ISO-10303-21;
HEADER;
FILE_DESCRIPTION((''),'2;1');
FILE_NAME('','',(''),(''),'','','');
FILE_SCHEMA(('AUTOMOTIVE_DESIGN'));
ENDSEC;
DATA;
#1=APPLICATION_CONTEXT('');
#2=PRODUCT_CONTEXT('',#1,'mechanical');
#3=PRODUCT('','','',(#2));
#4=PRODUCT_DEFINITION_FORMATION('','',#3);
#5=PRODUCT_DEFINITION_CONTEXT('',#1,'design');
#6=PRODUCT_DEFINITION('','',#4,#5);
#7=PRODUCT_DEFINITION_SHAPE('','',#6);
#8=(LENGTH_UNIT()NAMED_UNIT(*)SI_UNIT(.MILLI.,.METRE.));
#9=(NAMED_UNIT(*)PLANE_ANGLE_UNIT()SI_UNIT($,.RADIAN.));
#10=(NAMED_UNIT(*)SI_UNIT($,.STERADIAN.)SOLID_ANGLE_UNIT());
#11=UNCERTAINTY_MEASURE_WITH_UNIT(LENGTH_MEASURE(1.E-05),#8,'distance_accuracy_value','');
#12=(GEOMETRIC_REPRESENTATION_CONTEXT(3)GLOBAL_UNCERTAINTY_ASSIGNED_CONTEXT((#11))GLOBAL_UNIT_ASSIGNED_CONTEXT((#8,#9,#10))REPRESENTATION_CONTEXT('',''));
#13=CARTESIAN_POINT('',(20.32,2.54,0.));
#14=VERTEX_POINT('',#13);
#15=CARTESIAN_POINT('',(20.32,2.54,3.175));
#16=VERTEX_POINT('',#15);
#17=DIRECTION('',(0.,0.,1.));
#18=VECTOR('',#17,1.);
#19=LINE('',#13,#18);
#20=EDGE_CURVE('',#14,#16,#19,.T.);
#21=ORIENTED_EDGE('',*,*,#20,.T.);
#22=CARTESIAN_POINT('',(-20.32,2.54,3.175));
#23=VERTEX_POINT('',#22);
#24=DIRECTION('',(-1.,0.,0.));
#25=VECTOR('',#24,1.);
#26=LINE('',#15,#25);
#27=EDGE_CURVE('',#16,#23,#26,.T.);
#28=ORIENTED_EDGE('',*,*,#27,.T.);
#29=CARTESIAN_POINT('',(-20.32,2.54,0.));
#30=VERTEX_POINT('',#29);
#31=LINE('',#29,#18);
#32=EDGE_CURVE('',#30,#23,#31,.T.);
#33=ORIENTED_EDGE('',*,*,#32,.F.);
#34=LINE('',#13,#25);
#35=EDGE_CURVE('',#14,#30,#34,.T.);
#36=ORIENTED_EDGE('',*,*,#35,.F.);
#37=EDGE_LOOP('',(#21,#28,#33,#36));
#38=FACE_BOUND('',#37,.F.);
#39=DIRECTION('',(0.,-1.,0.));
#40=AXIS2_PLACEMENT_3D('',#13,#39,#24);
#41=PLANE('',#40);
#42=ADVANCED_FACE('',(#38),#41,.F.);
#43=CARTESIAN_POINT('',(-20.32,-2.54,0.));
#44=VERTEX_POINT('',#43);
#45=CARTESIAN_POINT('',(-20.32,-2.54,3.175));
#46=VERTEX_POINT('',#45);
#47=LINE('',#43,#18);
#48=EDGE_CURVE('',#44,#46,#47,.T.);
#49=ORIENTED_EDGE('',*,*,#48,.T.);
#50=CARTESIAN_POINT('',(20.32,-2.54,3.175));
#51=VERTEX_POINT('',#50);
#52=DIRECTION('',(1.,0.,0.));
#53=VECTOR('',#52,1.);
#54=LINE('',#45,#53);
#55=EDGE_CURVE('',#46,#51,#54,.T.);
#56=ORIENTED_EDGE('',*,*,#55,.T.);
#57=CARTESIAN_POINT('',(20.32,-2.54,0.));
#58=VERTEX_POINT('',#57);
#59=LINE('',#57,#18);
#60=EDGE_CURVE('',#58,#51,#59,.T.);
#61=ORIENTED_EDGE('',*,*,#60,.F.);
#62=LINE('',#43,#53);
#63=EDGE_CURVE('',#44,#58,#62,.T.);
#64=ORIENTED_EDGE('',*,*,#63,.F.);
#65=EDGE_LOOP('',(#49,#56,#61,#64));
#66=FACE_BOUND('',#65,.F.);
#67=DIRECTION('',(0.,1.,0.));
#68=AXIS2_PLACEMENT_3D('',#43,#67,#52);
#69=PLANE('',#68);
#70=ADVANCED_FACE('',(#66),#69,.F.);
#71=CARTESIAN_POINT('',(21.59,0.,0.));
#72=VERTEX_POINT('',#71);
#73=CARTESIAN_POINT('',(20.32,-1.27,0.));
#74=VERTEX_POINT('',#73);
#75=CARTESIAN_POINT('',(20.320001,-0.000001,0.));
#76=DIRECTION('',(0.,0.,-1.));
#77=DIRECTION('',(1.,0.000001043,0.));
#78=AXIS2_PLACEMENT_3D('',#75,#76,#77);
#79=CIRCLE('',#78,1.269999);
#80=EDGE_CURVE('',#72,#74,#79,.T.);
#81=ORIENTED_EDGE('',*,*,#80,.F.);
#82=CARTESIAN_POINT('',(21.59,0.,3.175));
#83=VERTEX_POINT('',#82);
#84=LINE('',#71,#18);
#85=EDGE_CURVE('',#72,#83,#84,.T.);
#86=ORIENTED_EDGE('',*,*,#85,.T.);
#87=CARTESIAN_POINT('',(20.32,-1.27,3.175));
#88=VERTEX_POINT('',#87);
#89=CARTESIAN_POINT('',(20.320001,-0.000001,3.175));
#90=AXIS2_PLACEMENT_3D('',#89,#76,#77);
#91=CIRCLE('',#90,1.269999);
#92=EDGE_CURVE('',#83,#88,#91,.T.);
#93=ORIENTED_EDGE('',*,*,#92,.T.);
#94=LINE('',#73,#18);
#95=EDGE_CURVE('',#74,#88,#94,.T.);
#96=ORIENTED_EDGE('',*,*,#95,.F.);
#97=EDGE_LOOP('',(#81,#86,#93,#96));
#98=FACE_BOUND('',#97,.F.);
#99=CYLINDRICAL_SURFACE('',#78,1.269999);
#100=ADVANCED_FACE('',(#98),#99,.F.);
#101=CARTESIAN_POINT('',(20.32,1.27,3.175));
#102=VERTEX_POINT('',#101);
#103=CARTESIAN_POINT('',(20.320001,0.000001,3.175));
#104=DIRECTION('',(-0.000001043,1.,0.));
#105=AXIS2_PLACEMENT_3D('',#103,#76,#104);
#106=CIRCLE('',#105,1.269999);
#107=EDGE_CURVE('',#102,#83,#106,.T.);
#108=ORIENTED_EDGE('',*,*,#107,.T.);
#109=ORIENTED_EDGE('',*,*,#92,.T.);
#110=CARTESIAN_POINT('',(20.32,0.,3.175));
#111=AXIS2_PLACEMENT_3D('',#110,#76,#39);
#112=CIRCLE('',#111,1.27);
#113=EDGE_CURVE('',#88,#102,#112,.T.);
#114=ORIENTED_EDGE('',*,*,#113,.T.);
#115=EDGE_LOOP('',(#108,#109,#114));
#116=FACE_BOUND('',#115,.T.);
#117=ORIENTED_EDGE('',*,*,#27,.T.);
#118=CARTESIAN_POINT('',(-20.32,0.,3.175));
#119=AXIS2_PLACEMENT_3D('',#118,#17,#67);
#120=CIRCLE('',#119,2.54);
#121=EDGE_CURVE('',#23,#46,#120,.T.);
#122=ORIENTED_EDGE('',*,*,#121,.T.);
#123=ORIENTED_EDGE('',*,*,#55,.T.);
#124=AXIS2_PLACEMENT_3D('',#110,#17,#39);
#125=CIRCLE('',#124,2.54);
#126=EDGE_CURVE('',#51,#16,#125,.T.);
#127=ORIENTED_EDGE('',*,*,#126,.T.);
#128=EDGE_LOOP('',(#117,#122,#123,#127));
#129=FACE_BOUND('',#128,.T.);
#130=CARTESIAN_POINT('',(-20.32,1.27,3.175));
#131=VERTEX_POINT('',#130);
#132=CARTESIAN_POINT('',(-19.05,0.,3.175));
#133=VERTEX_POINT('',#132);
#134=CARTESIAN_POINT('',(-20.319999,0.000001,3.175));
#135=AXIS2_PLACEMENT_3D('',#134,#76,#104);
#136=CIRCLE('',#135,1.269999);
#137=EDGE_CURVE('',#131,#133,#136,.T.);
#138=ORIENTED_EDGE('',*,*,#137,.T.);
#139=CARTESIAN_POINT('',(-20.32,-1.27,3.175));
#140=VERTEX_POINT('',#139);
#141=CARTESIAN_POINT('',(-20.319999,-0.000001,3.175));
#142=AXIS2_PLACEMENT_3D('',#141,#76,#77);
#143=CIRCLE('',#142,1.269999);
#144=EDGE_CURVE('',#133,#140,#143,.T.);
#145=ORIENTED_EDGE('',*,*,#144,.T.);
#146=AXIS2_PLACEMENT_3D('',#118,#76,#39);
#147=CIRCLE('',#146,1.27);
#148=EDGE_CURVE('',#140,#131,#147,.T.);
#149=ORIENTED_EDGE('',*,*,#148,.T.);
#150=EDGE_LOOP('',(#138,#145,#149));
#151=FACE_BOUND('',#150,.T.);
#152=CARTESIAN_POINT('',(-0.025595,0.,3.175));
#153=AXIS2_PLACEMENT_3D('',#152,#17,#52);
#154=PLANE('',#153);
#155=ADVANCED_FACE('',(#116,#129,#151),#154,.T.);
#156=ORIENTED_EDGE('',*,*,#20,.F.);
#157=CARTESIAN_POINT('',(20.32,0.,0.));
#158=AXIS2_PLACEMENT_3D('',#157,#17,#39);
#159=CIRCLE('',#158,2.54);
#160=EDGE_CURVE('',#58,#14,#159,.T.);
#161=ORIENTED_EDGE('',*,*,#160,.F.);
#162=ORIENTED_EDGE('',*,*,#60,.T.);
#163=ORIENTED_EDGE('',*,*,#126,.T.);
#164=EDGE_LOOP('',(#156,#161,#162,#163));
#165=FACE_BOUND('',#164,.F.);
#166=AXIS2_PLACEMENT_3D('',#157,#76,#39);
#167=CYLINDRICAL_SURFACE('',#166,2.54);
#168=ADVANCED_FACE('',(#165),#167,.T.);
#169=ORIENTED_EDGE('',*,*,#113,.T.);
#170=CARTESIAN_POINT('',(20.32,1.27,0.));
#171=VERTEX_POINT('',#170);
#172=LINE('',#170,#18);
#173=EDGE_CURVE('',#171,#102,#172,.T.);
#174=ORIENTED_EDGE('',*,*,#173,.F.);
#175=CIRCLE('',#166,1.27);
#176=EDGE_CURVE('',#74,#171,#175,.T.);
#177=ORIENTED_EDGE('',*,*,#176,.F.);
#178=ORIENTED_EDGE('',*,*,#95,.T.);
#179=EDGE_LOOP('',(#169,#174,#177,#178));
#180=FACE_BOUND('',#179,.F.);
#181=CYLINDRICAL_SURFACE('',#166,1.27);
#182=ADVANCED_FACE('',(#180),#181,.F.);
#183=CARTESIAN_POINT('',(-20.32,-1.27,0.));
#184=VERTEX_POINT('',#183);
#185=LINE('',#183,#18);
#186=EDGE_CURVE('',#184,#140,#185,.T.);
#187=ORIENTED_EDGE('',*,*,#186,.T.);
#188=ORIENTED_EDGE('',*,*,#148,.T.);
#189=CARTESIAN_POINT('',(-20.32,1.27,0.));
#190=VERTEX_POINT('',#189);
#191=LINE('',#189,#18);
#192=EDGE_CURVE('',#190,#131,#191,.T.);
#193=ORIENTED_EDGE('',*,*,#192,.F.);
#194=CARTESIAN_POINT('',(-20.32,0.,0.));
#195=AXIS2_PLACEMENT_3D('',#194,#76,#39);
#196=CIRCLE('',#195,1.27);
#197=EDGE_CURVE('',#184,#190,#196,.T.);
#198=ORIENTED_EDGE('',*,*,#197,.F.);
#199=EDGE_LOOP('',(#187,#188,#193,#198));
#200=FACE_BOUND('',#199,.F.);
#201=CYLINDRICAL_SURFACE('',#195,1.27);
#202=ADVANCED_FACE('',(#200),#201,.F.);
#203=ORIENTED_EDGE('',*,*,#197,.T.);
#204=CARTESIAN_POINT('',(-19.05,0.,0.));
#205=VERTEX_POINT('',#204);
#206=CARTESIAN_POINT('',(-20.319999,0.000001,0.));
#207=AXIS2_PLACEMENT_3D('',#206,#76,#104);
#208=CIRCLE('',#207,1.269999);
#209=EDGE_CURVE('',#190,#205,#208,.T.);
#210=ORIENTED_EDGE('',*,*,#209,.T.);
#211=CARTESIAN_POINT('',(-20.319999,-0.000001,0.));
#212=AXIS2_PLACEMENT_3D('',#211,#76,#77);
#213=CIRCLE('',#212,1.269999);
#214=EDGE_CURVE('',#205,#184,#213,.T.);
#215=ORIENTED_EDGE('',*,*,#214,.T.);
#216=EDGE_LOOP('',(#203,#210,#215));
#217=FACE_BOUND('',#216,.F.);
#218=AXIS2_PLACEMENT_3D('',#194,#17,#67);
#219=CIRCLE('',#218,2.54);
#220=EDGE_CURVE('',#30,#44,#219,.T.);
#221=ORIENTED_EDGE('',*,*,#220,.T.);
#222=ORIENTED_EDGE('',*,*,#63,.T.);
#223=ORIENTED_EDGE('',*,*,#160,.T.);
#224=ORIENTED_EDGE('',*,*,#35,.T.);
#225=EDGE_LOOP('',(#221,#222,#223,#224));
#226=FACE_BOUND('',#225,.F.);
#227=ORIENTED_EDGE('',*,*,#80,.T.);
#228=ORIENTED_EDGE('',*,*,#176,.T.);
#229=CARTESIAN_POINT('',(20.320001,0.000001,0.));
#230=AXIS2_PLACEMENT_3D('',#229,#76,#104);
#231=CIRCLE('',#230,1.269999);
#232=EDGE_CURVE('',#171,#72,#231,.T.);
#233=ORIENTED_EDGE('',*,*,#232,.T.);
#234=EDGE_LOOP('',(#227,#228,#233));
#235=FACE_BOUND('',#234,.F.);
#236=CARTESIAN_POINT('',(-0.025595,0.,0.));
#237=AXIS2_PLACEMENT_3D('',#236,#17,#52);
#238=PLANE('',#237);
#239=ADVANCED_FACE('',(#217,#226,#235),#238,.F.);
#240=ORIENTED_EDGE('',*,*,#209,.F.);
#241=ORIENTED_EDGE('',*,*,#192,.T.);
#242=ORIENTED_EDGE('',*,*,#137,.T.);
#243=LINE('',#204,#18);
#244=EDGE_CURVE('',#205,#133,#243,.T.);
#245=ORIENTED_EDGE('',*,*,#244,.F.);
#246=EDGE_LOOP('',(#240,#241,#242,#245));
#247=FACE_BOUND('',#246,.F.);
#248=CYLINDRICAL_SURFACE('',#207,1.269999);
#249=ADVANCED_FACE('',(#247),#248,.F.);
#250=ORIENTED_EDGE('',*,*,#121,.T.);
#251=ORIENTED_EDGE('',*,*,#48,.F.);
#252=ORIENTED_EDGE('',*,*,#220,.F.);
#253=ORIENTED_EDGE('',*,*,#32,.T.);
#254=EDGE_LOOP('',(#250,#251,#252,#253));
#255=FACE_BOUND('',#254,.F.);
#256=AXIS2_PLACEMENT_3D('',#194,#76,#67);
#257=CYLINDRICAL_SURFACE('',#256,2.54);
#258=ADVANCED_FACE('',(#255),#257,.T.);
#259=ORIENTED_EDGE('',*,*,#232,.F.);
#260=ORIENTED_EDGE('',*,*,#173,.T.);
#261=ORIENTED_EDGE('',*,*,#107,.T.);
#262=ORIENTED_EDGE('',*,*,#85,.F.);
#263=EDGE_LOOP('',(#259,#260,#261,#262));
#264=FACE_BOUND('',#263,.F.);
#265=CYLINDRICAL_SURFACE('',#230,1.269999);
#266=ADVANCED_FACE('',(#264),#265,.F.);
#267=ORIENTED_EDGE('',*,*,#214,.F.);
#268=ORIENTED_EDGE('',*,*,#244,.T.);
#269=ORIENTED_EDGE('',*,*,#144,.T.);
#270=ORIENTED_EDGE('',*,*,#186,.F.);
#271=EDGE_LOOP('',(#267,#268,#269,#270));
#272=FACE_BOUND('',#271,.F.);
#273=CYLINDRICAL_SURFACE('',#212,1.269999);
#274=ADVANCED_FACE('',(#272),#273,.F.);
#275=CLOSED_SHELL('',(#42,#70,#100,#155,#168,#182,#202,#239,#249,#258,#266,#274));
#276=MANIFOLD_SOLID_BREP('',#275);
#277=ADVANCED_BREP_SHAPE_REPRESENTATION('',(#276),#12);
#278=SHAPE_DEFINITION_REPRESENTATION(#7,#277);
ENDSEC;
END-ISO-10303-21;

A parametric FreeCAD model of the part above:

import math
import FreeCAD as App
import Part
import Sketcher

V = App.Vector
Q = App.Units.Quantity

doc = App.newDocument("Part")
body = doc.addObject("PartDesign::Body", "Body")

# Sketch on XY plane
sketch1 = body.newObject("Sketcher::SketchObject", "Sketch")
sketch1.AttachmentSupport = (doc.getObject("XY_Plane"), [""])
sketch1.MapMode = "FlatFace"
sketch1.addGeometry(Part.LineSegment(V(20.3, 2.5, 0), V(-20.3, 2.5, 0)), False)
sketch1.addGeometry(Part.ArcOfCircle(Part.Circle(V(-20.3, 0, 0), V(0, 0, 1), 2.5), math.radians(90), math.radians(270)), False)
sketch1.addGeometry(Part.LineSegment(V(-20.3, -2.5, 0), V(20.3, -2.5, 0)), False)
sketch1.addGeometry(Part.ArcOfCircle(Part.Circle(V(20.3, 0, 0), V(0, 0, 1), 2.5), math.radians(-90), math.radians(90)), False)
sketch1.addGeometry(Part.ArcOfCircle(Part.Circle(V(-20.3, 0, 0), V(0, 0, 1), 1.3), math.radians(0), math.radians(90)), False)
sketch1.addGeometry(Part.ArcOfCircle(Part.Circle(V(-20.3, 0, 0), V(0, 0, 1), 1.3), math.radians(-90), math.radians(0)), False)
sketch1.addGeometry(Part.ArcOfCircle(Part.Circle(V(-20.3, 0, 0), V(0, 0, 1), 1.3), math.radians(90), math.radians(270)), False)
sketch1.addGeometry(Part.ArcOfCircle(Part.Circle(V(20.3, 0, 0), V(0, 0, 1), 1.3), math.radians(90), math.radians(270)), False)
sketch1.addGeometry(Part.ArcOfCircle(Part.Circle(V(20.3, 0, 0), V(0, 0, 1), 1.3), math.radians(0), math.radians(90)), False)
sketch1.addGeometry(Part.ArcOfCircle(Part.Circle(V(20.3, 0, 0), V(0, 0, 1), 1.3), math.radians(-90), math.radians(0)), False)
sketch1.addConstraint(Sketcher.Constraint("Tangent", 0, 2, 1, 1))
sketch1.addConstraint(Sketcher.Constraint("Tangent", 1, 2, 2, 1))
sketch1.addConstraint(Sketcher.Constraint("Tangent", 2, 2, 3, 1))
sketch1.addConstraint(Sketcher.Constraint("Tangent", 3, 2, 0, 1))
sketch1.addConstraint(Sketcher.Constraint("Coincident", 4, 1, 5, 2))
sketch1.addConstraint(Sketcher.Constraint("Tangent", 5, 1, 6, 2))
sketch1.addConstraint(Sketcher.Constraint("Tangent", 6, 1, 4, 2))
sketch1.addConstraint(Sketcher.Constraint("Tangent", 7, 1, 8, 2))
sketch1.addConstraint(Sketcher.Constraint("Coincident", 8, 1, 9, 2))
sketch1.addConstraint(Sketcher.Constraint("Tangent", 9, 1, 7, 2))
sketch1.addConstraint(Sketcher.Constraint("Horizontal", 0))
sketch1.addConstraint(Sketcher.Constraint("Horizontal", 2))
sketch1.addConstraint(Sketcher.Constraint("Coincident", 4, 3, 1, 3))
sketch1.addConstraint(Sketcher.Constraint("Coincident", 7, 3, 3, 3))
sketch1.addConstraint(Sketcher.Constraint("Equal", 5, 6))
sketch1.addConstraint(Sketcher.Constraint("Equal", 6, 7))
sketch1.addConstraint(Sketcher.Constraint("Equal", 7, 8))
sketch1.addConstraint(Sketcher.Constraint("Symmetric", 1, 3, 3, 3, -1, 1))
sketch1.addConstraint(Sketcher.Constraint("PointOnObject", 4, 1, -1))
sketch1.addConstraint(Sketcher.Constraint("PointOnObject", 8, 1, -1))
sketch1.addConstraint(Sketcher.Constraint("Vertical", 1, 2, 5, 1))
sketch1.addConstraint(Sketcher.Constraint("Vertical", 5, 1, 6, 1))
sketch1.addConstraint(Sketcher.Constraint("Vertical", 3, 2, 7, 1))
sketch1.addConstraint(Sketcher.Constraint("Vertical", 7, 1, 9, 1))
sketch1.addConstraint(Sketcher.Constraint("Radius", 1, Q("0.1 in")))
sketch1.addConstraint(Sketcher.Constraint("Radius", 4, Q("0.0499999 in")))
sketch1.addConstraint(Sketcher.Constraint("DistanceX", 0, 2, 0, 1, Q("1.6 in")))
pad1 = body.newObject("PartDesign::Pad", "Pad")
pad1.Profile = sketch1
pad1.Length = Q("0.125 in")

doc.recompute()
